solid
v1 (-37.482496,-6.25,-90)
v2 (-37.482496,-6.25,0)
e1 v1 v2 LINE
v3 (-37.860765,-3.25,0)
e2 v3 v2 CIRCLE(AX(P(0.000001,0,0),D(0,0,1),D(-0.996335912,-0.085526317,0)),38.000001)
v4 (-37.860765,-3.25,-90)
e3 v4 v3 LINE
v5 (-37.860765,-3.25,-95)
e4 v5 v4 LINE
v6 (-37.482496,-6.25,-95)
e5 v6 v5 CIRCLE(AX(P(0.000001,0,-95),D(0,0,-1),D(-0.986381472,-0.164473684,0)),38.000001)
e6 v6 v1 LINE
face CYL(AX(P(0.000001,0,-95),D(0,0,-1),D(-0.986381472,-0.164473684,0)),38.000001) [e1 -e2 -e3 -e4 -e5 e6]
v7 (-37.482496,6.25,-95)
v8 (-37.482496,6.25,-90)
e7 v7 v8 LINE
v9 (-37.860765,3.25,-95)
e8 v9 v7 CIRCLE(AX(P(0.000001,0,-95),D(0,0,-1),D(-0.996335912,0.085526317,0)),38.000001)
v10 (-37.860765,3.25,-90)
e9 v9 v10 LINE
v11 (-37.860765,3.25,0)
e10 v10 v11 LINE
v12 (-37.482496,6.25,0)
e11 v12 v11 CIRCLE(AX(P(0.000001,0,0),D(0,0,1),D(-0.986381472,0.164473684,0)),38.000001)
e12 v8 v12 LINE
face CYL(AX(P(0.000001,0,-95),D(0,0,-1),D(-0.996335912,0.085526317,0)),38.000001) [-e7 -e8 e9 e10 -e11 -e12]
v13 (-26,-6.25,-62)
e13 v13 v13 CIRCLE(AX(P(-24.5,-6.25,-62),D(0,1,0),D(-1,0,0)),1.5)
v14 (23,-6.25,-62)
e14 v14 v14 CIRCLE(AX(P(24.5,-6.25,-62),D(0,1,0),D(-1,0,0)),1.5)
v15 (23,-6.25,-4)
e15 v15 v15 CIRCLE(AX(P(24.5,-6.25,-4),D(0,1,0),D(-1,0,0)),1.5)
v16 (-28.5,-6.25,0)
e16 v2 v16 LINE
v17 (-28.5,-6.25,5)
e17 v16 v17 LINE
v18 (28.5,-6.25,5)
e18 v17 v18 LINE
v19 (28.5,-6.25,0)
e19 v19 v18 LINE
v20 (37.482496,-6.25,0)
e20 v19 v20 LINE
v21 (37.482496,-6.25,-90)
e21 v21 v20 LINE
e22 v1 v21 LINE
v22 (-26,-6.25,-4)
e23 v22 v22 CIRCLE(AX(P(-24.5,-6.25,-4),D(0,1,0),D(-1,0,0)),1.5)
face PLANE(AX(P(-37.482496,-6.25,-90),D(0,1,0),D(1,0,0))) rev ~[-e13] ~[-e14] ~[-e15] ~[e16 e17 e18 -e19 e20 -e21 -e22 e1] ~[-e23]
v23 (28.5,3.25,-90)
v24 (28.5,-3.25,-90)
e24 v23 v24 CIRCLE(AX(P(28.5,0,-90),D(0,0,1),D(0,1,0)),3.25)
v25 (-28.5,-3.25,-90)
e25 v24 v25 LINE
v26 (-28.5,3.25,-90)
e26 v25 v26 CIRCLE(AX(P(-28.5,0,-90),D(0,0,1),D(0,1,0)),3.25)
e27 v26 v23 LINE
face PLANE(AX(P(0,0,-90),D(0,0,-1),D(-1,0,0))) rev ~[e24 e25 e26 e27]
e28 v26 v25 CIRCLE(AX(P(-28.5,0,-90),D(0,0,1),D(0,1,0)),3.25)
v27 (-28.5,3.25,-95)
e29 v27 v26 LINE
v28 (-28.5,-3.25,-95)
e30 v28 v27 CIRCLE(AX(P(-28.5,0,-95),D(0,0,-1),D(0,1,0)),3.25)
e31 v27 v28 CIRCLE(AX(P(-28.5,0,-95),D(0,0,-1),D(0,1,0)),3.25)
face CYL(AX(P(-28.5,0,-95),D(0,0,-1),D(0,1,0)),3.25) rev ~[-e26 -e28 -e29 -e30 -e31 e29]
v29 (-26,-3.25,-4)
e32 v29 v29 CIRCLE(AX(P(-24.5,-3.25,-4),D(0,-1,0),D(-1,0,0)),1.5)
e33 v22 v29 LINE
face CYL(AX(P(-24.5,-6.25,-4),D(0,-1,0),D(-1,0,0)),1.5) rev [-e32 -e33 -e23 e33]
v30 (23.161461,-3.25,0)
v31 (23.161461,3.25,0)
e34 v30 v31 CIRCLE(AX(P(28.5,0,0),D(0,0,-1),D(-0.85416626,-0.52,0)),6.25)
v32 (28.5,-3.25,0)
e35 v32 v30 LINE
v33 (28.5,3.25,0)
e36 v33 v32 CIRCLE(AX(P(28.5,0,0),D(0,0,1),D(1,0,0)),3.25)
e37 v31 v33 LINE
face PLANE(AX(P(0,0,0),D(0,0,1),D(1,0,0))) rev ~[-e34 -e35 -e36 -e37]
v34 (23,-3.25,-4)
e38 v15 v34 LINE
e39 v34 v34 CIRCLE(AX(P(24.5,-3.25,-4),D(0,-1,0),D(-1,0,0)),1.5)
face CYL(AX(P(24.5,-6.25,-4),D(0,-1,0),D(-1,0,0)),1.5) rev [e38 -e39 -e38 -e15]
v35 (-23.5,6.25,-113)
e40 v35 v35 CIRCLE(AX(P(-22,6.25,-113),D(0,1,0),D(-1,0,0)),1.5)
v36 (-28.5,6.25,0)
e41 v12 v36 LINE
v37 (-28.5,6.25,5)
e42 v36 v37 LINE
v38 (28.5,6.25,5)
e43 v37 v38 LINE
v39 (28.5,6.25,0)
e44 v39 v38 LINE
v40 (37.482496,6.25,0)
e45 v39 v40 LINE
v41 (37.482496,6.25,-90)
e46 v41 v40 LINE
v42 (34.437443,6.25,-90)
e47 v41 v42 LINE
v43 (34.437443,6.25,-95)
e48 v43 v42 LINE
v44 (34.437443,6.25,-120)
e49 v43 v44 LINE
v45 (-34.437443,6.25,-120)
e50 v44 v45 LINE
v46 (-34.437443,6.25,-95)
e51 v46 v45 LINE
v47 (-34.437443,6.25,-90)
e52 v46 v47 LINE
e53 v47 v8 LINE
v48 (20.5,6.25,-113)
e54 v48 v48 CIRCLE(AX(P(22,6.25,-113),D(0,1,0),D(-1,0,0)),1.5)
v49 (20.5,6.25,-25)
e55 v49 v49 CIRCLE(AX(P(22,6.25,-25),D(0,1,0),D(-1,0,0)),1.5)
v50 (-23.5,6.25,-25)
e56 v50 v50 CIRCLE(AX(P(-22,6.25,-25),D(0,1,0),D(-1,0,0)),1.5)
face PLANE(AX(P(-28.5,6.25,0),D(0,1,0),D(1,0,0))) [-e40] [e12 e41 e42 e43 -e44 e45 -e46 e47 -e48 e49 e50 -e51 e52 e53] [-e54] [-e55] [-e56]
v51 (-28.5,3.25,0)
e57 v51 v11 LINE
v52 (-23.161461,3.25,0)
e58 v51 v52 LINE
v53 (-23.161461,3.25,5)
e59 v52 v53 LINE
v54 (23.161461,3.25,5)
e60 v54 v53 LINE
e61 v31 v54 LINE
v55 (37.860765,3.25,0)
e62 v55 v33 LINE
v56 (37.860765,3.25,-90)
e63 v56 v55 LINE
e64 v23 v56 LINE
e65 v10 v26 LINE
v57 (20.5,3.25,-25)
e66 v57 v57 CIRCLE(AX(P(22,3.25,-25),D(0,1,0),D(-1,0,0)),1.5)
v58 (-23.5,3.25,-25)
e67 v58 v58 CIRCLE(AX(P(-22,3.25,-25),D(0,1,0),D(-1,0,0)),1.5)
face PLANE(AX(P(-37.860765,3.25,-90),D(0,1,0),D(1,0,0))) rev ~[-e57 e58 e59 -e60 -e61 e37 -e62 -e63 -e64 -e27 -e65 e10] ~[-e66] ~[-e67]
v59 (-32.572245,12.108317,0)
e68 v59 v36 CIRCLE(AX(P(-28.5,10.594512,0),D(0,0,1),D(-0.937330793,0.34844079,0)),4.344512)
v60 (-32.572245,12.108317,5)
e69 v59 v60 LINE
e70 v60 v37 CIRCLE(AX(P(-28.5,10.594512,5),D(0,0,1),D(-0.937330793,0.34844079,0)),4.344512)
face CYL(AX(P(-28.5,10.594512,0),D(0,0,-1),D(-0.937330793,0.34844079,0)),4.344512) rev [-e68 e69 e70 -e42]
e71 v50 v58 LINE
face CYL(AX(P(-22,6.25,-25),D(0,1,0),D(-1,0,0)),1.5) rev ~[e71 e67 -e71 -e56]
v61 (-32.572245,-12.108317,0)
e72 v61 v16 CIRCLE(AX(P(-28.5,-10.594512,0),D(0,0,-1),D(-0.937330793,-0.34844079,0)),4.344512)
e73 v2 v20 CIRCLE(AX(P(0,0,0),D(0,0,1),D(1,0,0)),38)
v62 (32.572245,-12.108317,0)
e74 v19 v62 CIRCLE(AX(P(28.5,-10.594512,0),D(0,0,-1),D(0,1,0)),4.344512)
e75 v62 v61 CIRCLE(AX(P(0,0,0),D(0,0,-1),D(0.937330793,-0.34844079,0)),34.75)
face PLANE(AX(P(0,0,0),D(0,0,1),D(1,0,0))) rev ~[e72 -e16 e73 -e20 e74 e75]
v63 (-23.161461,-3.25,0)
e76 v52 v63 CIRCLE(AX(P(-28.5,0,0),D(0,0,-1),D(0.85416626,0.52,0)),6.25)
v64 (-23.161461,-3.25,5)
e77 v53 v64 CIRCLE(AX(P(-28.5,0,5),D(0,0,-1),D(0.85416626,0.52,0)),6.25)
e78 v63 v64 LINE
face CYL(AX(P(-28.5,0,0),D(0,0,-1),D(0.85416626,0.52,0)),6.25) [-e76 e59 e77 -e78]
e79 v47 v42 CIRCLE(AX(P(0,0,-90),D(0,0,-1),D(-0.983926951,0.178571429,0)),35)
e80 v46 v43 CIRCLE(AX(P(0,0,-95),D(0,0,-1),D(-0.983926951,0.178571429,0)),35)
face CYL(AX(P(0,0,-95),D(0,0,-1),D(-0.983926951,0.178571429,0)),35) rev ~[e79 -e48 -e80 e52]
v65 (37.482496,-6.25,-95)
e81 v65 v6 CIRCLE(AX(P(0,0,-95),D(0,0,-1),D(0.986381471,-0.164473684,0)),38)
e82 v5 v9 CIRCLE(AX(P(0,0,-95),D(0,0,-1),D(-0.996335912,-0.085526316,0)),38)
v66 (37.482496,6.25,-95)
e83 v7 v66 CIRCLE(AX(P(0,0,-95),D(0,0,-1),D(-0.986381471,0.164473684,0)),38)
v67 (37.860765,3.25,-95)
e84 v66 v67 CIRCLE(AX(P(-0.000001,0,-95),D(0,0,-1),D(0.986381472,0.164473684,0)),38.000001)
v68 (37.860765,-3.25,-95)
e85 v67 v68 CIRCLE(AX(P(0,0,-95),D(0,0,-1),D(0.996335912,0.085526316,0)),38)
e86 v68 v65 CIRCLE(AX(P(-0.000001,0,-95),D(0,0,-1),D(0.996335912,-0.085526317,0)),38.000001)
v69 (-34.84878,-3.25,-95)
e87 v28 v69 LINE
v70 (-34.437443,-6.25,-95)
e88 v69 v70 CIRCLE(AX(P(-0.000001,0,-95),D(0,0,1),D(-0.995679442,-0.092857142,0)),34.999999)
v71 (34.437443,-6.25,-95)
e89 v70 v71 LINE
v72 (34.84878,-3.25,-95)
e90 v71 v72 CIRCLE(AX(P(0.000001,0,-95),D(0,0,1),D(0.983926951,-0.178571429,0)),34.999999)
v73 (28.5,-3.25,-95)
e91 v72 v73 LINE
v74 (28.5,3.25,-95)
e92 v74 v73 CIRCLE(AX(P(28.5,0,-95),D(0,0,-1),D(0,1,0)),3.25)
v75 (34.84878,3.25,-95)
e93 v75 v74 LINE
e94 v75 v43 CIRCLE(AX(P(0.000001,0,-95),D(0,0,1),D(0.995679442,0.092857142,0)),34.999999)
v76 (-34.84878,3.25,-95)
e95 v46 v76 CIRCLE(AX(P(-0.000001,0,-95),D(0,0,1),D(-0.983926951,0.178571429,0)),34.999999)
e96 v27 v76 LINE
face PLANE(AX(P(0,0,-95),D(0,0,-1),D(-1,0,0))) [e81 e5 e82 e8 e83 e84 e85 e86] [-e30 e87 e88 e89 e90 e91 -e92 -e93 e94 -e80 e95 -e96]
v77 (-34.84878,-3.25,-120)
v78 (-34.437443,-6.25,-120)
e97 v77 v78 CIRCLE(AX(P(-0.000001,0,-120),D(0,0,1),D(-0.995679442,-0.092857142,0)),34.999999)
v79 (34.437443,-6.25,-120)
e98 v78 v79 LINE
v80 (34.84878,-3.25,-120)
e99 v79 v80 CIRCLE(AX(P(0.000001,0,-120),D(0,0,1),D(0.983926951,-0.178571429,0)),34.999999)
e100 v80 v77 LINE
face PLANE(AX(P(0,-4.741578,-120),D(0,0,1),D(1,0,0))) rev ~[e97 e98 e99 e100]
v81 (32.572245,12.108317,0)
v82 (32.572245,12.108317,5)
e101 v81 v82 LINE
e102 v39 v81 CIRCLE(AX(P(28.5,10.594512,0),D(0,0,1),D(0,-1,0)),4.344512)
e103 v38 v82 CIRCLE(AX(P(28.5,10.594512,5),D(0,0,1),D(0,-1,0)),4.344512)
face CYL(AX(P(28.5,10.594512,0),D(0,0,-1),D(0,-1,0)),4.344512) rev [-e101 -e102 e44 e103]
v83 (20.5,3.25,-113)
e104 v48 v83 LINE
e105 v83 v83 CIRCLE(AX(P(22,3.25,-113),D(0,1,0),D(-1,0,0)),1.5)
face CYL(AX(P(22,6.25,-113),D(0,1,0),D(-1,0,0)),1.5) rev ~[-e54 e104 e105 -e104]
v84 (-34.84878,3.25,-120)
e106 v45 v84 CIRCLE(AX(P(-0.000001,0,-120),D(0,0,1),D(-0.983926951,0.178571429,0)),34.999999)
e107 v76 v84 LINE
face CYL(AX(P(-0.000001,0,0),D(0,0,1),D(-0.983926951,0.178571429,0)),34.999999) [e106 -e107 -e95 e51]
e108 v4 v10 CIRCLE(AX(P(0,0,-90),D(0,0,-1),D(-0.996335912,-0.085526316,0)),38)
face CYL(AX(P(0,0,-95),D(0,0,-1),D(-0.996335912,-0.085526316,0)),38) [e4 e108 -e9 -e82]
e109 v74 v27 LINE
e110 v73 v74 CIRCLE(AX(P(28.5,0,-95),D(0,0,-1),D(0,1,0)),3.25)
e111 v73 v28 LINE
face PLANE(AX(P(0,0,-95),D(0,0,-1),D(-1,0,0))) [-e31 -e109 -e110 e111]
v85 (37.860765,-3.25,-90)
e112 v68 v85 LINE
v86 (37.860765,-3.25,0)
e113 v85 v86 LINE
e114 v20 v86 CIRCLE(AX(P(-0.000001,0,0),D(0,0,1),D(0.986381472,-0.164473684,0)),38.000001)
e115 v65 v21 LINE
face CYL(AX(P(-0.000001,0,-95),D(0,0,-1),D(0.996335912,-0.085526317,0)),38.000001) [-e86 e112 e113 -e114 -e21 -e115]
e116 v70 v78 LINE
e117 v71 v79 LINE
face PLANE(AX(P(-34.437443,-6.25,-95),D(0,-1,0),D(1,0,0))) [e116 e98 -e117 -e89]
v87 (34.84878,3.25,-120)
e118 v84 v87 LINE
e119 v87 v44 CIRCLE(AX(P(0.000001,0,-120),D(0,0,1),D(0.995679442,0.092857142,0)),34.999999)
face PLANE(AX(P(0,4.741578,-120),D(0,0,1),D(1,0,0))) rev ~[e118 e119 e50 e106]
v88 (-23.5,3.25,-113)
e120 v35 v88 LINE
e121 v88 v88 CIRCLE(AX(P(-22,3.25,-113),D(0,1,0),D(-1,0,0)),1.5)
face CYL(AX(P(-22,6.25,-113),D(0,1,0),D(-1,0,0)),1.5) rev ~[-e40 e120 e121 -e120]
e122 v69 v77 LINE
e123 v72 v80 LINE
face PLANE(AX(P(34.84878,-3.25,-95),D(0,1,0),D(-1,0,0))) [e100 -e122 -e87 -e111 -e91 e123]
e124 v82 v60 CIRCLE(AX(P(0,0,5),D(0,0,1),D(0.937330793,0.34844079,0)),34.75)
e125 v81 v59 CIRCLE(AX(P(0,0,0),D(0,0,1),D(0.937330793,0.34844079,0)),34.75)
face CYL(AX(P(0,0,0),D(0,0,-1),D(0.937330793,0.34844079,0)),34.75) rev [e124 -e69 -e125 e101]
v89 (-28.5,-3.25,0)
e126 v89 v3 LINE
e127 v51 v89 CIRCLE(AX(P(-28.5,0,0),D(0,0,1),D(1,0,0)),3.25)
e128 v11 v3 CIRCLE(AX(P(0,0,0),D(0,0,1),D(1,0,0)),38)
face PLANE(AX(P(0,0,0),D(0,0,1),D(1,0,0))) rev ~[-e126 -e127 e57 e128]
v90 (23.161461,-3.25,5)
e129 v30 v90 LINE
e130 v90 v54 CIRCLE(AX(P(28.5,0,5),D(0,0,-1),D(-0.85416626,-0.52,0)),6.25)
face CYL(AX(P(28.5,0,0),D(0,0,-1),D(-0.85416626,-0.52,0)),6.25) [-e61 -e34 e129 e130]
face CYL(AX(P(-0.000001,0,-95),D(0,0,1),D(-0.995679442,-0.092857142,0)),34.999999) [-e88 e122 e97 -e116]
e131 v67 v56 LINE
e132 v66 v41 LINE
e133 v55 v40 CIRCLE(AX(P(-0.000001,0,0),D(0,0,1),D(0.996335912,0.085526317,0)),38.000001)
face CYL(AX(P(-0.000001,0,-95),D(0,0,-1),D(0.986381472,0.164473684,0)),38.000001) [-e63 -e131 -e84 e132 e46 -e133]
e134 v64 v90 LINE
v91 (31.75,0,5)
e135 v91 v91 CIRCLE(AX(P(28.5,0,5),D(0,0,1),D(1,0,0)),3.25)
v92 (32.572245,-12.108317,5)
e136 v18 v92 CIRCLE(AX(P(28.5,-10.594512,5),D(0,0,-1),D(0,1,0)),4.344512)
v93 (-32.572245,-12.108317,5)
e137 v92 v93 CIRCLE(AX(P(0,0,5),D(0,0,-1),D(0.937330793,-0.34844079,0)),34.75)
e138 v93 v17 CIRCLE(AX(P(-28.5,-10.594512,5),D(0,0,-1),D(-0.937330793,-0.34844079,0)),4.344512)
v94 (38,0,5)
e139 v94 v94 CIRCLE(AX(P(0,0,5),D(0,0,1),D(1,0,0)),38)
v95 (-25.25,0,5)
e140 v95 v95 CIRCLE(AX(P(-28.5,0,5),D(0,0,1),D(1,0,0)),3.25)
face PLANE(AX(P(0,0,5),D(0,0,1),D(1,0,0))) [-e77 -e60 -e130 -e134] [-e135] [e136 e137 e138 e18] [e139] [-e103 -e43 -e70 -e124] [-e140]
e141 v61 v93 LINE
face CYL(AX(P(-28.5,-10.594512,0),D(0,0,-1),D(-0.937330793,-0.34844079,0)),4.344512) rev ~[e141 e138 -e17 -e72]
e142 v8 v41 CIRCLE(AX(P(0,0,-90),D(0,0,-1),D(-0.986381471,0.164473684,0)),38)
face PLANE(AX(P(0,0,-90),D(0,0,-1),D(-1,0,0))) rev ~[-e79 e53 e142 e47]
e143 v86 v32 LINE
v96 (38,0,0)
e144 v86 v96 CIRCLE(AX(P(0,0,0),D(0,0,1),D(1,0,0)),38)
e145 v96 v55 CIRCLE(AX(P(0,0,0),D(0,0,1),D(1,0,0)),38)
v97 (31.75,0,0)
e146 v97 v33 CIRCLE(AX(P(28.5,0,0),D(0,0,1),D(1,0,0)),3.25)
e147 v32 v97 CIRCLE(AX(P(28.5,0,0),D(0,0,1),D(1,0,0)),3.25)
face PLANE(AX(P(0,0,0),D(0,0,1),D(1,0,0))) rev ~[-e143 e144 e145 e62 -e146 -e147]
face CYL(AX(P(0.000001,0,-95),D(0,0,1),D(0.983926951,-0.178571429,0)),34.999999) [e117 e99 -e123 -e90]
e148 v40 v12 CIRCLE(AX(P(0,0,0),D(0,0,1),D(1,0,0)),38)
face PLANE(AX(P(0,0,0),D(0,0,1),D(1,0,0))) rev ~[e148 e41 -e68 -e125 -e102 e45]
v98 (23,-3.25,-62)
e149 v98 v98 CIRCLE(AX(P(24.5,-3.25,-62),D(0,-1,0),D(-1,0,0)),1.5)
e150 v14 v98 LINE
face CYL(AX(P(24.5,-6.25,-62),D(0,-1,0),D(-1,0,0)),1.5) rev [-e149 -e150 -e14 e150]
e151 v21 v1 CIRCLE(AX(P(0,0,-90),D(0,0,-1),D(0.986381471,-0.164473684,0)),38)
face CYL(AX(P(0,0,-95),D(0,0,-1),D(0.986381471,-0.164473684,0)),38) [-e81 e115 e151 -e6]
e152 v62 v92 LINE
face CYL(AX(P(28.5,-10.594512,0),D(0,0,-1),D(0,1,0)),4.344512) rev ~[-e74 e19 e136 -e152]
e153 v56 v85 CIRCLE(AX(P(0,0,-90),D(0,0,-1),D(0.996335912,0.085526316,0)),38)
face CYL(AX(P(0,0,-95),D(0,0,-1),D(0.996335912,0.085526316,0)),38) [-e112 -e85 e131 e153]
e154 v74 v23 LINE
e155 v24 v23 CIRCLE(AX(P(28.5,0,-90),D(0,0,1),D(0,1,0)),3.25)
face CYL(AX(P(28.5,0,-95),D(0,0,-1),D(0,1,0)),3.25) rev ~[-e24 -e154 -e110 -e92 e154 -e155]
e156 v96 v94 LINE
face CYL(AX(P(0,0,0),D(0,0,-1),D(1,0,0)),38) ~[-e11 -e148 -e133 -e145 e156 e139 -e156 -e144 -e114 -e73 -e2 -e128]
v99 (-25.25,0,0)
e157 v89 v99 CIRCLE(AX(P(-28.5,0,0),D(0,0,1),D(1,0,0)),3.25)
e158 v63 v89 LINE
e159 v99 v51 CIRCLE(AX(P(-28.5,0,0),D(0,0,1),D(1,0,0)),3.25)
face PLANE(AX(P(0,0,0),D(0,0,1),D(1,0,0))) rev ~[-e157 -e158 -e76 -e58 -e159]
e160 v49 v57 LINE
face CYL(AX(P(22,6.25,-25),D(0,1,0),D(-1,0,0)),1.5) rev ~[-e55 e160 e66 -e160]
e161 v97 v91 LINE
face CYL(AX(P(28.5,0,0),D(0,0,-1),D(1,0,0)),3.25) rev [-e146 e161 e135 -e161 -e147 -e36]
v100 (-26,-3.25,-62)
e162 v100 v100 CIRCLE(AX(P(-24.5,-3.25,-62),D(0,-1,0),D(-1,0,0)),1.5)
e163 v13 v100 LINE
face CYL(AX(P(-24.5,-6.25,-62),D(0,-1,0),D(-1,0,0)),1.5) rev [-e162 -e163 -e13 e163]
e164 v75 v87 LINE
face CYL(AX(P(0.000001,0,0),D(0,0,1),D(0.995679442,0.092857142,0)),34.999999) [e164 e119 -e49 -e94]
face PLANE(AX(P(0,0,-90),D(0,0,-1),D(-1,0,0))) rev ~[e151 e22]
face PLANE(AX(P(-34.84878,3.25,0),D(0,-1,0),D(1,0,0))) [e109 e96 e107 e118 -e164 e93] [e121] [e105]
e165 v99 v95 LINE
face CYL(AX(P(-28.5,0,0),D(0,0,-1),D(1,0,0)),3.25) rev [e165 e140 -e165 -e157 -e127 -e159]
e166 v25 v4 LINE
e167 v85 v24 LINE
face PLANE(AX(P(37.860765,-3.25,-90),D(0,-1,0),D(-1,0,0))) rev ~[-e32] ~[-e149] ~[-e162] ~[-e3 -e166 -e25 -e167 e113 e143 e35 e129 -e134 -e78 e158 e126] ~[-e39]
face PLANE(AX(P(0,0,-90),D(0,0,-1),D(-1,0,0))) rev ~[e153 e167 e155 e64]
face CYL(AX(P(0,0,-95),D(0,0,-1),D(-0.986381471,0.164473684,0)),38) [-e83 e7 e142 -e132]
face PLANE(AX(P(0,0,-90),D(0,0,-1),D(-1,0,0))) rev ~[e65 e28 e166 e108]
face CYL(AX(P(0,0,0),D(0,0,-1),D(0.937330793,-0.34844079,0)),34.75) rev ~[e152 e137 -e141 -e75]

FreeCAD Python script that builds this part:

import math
import FreeCAD as App
import Part
import Sketcher

V = App.Vector
Q = App.Units.Quantity

doc = App.newDocument("Part")
body = doc.addObject("PartDesign::Body", "Body")

sketch1 = doc.addObject("Sketcher::SketchObject", "Sketch")
body.addObject(sketch1)
sketch1.AttachmentSupport = (doc.XY_Plane, [""])
sketch1.MapMode = "FlatFace"
sketch1.addGeometry(Part.Circle(V(0, 0, 0), V(0, 0, 1), 38), False)
sketch1.addGeometry(Part.ArcOfCircle(Part.Circle(V(-28.5, -10.6, 0), V(0, 0, 1), 4.3), math.radians(90), math.radians(200)), False)
sketch1.addGeometry(Part.LineSegment(V(-28.5, -6.2, 0), V(28.5, -6.2, 0)), False)
sketch1.addGeometry(Part.ArcOfCircle(Part.Circle(V(28.5, -10.6, 0), V(0, 0, 1), 4.3), math.radians(-20), math.radians(90)), False)
sketch1.addGeometry(Part.ArcOfCircle(Part.Circle(V(0, 0, 0), V(0, 0, 1), 34.8), math.radians(-160), math.radians(-20)), False)
sketch1.addGeometry(Part.Circle(V(-28.5, 0, 0), V(0, 0, 1), 3.2), False)
sketch1.addGeometry(Part.LineSegment(V(-23.2, 3.2, 0), V(23.2, 3.2, 0)), False)
sketch1.addGeometry(Part.ArcOfCircle(Part.Circle(V(28.5, 0, 0), V(0, 0, 1), 6.2), math.radians(149), math.radians(211)), False)
sketch1.addGeometry(Part.LineSegment(V(23.2, -3.2, 0), V(-23.2, -3.2, 0)), False)
sketch1.addGeometry(Part.ArcOfCircle(Part.Circle(V(-28.5, 0, 0), V(0, 0, 1), 6.2), math.radians(-31), math.radians(31)), False)
sketch1.addGeometry(Part.Circle(V(28.5, 0, 0), V(0, 0, 1), 3.2), False)
sketch1.addGeometry(Part.LineSegment(V(28.5, 6.2, 0), V(-28.5, 6.2, 0)), False)
sketch1.addGeometry(Part.ArcOfCircle(Part.Circle(V(-28.5, 10.6, 0), V(0, 0, 1), 4.3), math.radians(160), math.radians(270)), False)
sketch1.addGeometry(Part.ArcOfCircle(Part.Circle(V(0, 0, 0), V(0, 0, 1), 34.8), math.radians(20), math.radians(160)), False)
sketch1.addGeometry(Part.ArcOfCircle(Part.Circle(V(28.5, 10.6, 0), V(0, 0, 1), 4.3), math.radians(-90), math.radians(20)), False)
sketch1.addConstraint(Sketcher.Constraint("Tangent", 1, 1, 2, 1))
sketch1.addConstraint(Sketcher.Constraint("Tangent", 2, 2, 3, 2))
sketch1.addConstraint(Sketcher.Constraint("Tangent", 3, 1, 4, 2))
sketch1.addConstraint(Sketcher.Constraint("Tangent", 4, 1, 1, 2))
sketch1.addConstraint(Sketcher.Constraint("Coincident", 6, 2, 7, 1))
sketch1.addConstraint(Sketcher.Constraint("Coincident", 7, 2, 8, 1))
sketch1.addConstraint(Sketcher.Constraint("Coincident", 8, 2, 9, 1))
sketch1.addConstraint(Sketcher.Constraint("Coincident", 9, 2, 6, 1))
sketch1.addConstraint(Sketcher.Constraint("Tangent", 11, 2, 12, 2))
sketch1.addConstraint(Sketcher.Constraint("Tangent", 12, 1, 13, 2))
sketch1.addConstraint(Sketcher.Constraint("Tangent", 13, 1, 14, 2))
sketch1.addConstraint(Sketcher.Constraint("Tangent", 14, 1, 11, 1))
sketch1.addConstraint(Sketcher.Constraint("Horizontal", 2))
sketch1.addConstraint(Sketcher.Constraint("Horizontal", 6))
sketch1.addConstraint(Sketcher.Constraint("Horizontal", 8))
sketch1.addConstraint(Sketcher.Constraint("Horizontal", 11))
sketch1.addConstraint(Sketcher.Constraint("Coincident", 0, 3, -1, 1))
sketch1.addConstraint(Sketcher.Constraint("Coincident", 4, 3, -1, 1))
sketch1.addConstraint(Sketcher.Constraint("Coincident", 13, 3, -1, 1))
sketch1.addConstraint(Sketcher.Constraint("Coincident", 9, 3, 5, 3))
sketch1.addConstraint(Sketcher.Constraint("Coincident", 10, 3, 7, 3))
sketch1.addConstraint(Sketcher.Constraint("Equal", 1, 3))
sketch1.addConstraint(Sketcher.Constraint("Equal", 7, 9))
sketch1.addConstraint(Sketcher.Constraint("Equal", 5, 10))
sketch1.addConstraint(Sketcher.Constraint("Equal", 3, 12))
sketch1.addConstraint(Sketcher.Constraint("Equal", 4, 13))
sketch1.addConstraint(Sketcher.Constraint("Equal", 12, 14))
sketch1.addConstraint(Sketcher.Constraint("Symmetric", 5, 3, 7, 3, -1, 1))
sketch1.addConstraint(Sketcher.Constraint("Symmetric", 6, 2, 7, 2, -1))
sketch1.addConstraint(Sketcher.Constraint("Vertical", 1, 3, 5, 3))
sketch1.addConstraint(Sketcher.Constraint("Vertical", 9, 3, 12, 3))
sketch1.addConstraint(Sketcher.Constraint("Diameter", 0, Q("76 mm")))
sketch1.addConstraint(Sketcher.Constraint("Diameter", 5, Q("6.5 mm")))
sketch1.addConstraint(Sketcher.Constraint("DistanceX", 2, 1, 2, 2, Q("57 mm")))
sketch1.addConstraint(Sketcher.Constraint("Radius", 4, Q("34.75 mm")))
sketch1.addConstraint(Sketcher.Constraint("Radius", 7, Q("6.25 mm")))
sketch1.addConstraint(Sketcher.Constraint("DistanceY", 2, 2, 7, 2, Q("3 mm")))
sketch1.addConstraint(Sketcher.Constraint("DistanceY", 2, 2, 6, 2, Q("9.5 mm")))
pad1 = doc.addObject("PartDesign::Pad", "Pad")
body.addObject(pad1)
pad1.Profile = sketch1
pad1.Length = 5

sketch2 = doc.addObject("Sketcher::SketchObject", "Sketch001")
body.addObject(sketch2)
sketch2.AttachmentSupport = (doc.XY_Plane, [""])
sketch2.MapMode = "FlatFace"
sketch2.AttachmentOffset = App.Placement(V(0, 0, -90), App.Rotation())
sketch2.addGeometry(Part.LineSegment(V(-37.9, -3.2, 0), V(37.9, -3.2, 0)), False)
sketch2.addGeometry(Part.ArcOfCircle(Part.Circle(V(0, 0, 0), V(0, 0, 1), 38), math.radians(-9.47), math.radians(-4.91)), False)
sketch2.addGeometry(Part.LineSegment(V(37.5, -6.2, 0), V(-37.5, -6.2, 0)), False)
sketch2.addGeometry(Part.ArcOfCircle(Part.Circle(V(0, 0, 0), V(0, 0, 1), 38), math.radians(-175.09), math.radians(-170.53)), False)
sketch2.addGeometry(Part.LineSegment(V(-37.5, 6.2, 0), V(37.5, 6.2, 0)), False)
sketch2.addGeometry(Part.ArcOfCircle(Part.Circle(V(0, 0, 0), V(0, 0, 1), 38), math.radians(4.91), math.radians(9.47)), False)
sketch2.addGeometry(Part.LineSegment(V(37.9, 3.2, 0), V(-37.9, 3.2, 0)), False)
sketch2.addGeometry(Part.ArcOfCircle(Part.Circle(V(0, 0, 0), V(0, 0, 1), 38), math.radians(170.53), math.radians(175.09)), False)
sketch2.addConstraint(Sketcher.Constraint("Coincident", 0, 2, 1, 2))
sketch2.addConstraint(Sketcher.Constraint("Coincident", 1, 1, 2, 1))
sketch2.addConstraint(Sketcher.Constraint("Coincident", 2, 2, 3, 2))
sketch2.addConstraint(Sketcher.Constraint("Coincident", 3, 1, 0, 1))
sketch2.addConstraint(Sketcher.Constraint("Coincident", 4, 2, 5, 2))
sketch2.addConstraint(Sketcher.Constraint("Coincident", 5, 1, 6, 1))
sketch2.addConstraint(Sketcher.Constraint("Coincident", 6, 2, 7, 2))
sketch2.addConstraint(Sketcher.Constraint("Coincident", 7, 1, 4, 1))
sketch2.addConstraint(Sketcher.Constraint("Horizontal", 0))
sketch2.addConstraint(Sketcher.Constraint("Horizontal", 2))
sketch2.addConstraint(Sketcher.Constraint("Horizontal", 4))
sketch2.addConstraint(Sketcher.Constraint("Horizontal", 6))
sketch2.addConstraint(Sketcher.Constraint("Coincident", 1, 3, -1, 1))
sketch2.addConstraint(Sketcher.Constraint("Coincident", 3, 3, -1, 1))
sketch2.addConstraint(Sketcher.Constraint("Coincident", 5, 3, -1, 1))
sketch2.addConstraint(Sketcher.Constraint("Coincident", 7, 3, -1, 1))
sketch2.addConstraint(Sketcher.Constraint("Equal", 1, 3))
sketch2.addConstraint(Sketcher.Constraint("Equal", 3, 5))
sketch2.addConstraint(Sketcher.Constraint("Equal", 5, 7))
sketch2.addConstraint(Sketcher.Constraint("Vertical", 1, 1, 4, 2))
sketch2.addConstraint(Sketcher.Constraint("Vertical", 0, 2, 5, 1))
sketch2.addConstraint(Sketcher.Constraint("Radius", 1, Q("38.000001 mm")))
sketch2.addConstraint(Sketcher.Constraint("DistanceY", 1, 1, 0, 2, Q("3 mm")))
sketch2.addConstraint(Sketcher.Constraint("DistanceY", 0, 2, 4, 2, Q("9.5 mm")))
pad2 = doc.addObject("PartDesign::Pad", "Pad001")
body.addObject(pad2)
pad2.Profile = sketch2
pad2.Length = 90

sketch3 = doc.addObject("Sketcher::SketchObject", "Sketch002")
body.addObject(sketch3)
sketch3.AttachmentSupport = (doc.XY_Plane, [""])
sketch3.MapMode = "FlatFace"
sketch3.AttachmentOffset = App.Placement(V(0, 0, -95), App.Rotation())
sketch3.addGeometry(Part.ArcOfCircle(Part.Circle(V(0, 0, 0), V(0, 0, 1), 38), math.radians(170.53), math.radians(175.09)), False)
sketch3.addGeometry(Part.ArcOfCircle(Part.Circle(V(0, 0, 0), V(0, 0, 1), 38), math.radians(9), math.radians(171)), False)
sketch3.addGeometry(Part.ArcOfCircle(Part.Circle(V(0, 0, 0), V(0, 0, 1), 38), math.radians(4.91), math.radians(9.47)), False)
sketch3.addGeometry(Part.ArcOfCircle(Part.Circle(V(0, 0, 0), V(0, 0, 1), 38), math.radians(-4.91), math.radians(4.91)), False)
sketch3.addGeometry(Part.ArcOfCircle(Part.Circle(V(0, 0, 0), V(0, 0, 1), 38), math.radians(-9.47), math.radians(-4.91)), False)
sketch3.addGeometry(Part.ArcOfCircle(Part.Circle(V(0, 0, 0), V(0, 0, 1), 38), math.radians(-171), math.radians(-9)), False)
sketch3.addGeometry(Part.ArcOfCircle(Part.Circle(V(0, 0, 0), V(0, 0, 1), 38), math.radians(-175.09), math.radians(-170.53)), False)
sketch3.addGeometry(Part.ArcOfCircle(Part.Circle(V(0, 0, 0), V(0, 0, 1), 38), math.radians(175.09), math.radians(184.91)), False)
sketch3.addGeometry(Part.ArcOfCircle(Part.Circle(V(28.5, 0, 0), V(0, 0, 1), 3.2), math.radians(-90), math.radians(90)), False)
sketch3.addGeometry(Part.ArcOfCircle(Part.Circle(V(28.5, 0, 0), V(0, 0, 1), 3.2), math.radians(90), math.radians(270)), False)
sketch3.addGeometry(Part.ArcOfCircle(Part.Circle(V(-28.5, 0, 0), V(0, 0, 1), 3.2), math.radians(-90), math.radians(90)), False)
sketch3.addGeometry(Part.ArcOfCircle(Part.Circle(V(-28.5, 0, 0), V(0, 0, 1), 3.2), math.radians(90), math.radians(270)), False)
sketch3.addConstraint(Sketcher.Constraint("Tangent", 0, 1, 1, 2))
sketch3.addConstraint(Sketcher.Constraint("Tangent", 1, 1, 2, 2))
sketch3.addConstraint(Sketcher.Constraint("Tangent", 2, 1, 3, 2))
sketch3.addConstraint(Sketcher.Constraint("Tangent", 3, 1, 4, 2))
sketch3.addConstraint(Sketcher.Constraint("Tangent", 4, 1, 5, 2))
sketch3.addConstraint(Sketcher.Constraint("Tangent", 5, 1, 6, 2))
sketch3.addConstraint(Sketcher.Constraint("Tangent", 6, 1, 7, 2))
sketch3.addConstraint(Sketcher.Constraint("Tangent", 7, 1, 0, 2))
sketch3.addConstraint(Sketcher.Constraint("Tangent", 8, 1, 9, 2))
sketch3.addConstraint(Sketcher.Constraint("Coincident", 9, 1, 8, 2))
sketch3.addConstraint(Sketcher.Constraint("Tangent", 10, 1, 11, 2))
sketch3.addConstraint(Sketcher.Constraint("Coincident", 11, 1, 10, 2))
sketch3.addConstraint(Sketcher.Constraint("Coincident", 0, 3, -1, 1))
sketch3.addConstraint(Sketcher.Constraint("Coincident", 2, 3, -1, 1))
sketch3.addConstraint(Sketcher.Constraint("Coincident", 4, 3, -1, 1))
sketch3.addConstraint(Sketcher.Constraint("Equal", 4, 5))
sketch3.addConstraint(Sketcher.Constraint("Equal", 9, 10))
sketch3.addConstraint(Sketcher.Constraint("Symmetric", 8, 3, 10, 3, -1, 1))
sketch3.addConstraint(Sketcher.Constraint("Symmetric", 8, 1, 10, 1, -2))
sketch3.addConstraint(Sketcher.Constraint("Horizontal", 0, 1, 1, 1))
sketch3.addConstraint(Sketcher.Constraint("Horizontal", 4, 1, 5, 1))
sketch3.addConstraint(Sketcher.Constraint("Horizontal", 3, 1, 6, 1))
sketch3.addConstraint(Sketcher.Constraint("Horizontal", 2, 1, 7, 1))
sketch3.addConstraint(Sketcher.Constraint("Horizontal", 6, 1, 8, 1))
sketch3.addConstraint(Sketcher.Constraint("Horizontal", 7, 1, 9, 1))
sketch3.addConstraint(Sketcher.Constraint("Vertical", 1, 1, 4, 1))
sketch3.addConstraint(Sketcher.Constraint("Vertical", 9, 3, 8, 1))
sketch3.addConstraint(Sketcher.Constraint("Vertical", 8, 1, 9, 1))
sketch3.addConstraint(Sketcher.Constraint("Vertical", 10, 1, 11, 1))
sketch3.addConstraint(Sketcher.Constraint("Radius", 0, Q("38.000001 mm")))
sketch3.addConstraint(Sketcher.Constraint("Radius", 8, Q("3.25 mm")))
sketch3.addConstraint(Sketcher.Constraint("DistanceY", 2, 1, 1, 1, Q("3 mm")))
sketch3.addConstraint(Sketcher.Constraint("DistanceX", -1, 1, 8, 3, Q("28.5 mm")))
pad3 = doc.addObject("PartDesign::Pad", "Pad002")
body.addObject(pad3)
pad3.Profile = sketch3
pad3.Length = 5

sketch4 = doc.addObject("Sketcher::SketchObject", "Sketch003")
body.addObject(sketch4)
sketch4.AttachmentSupport = (doc.XZ_Plane, [""])
sketch4.MapMode = "FlatFace"
sketch4.AttachmentOffset = App.Placement(V(0, 0, 6.25), App.Rotation())
sketch4.addGeometry(Part.Circle(V(-24.5, -62, 0), V(0, 0, 1), 1.5), False)
sketch4.addConstraint(Sketcher.Constraint("Diameter", 0, Q("3 mm")))
sketch4.addConstraint(Sketcher.Constraint("DistanceY", 0, 3, -1, 1, Q("62 mm")))
sketch4.addConstraint(Sketcher.Constraint("DistanceX", 0, 3, -1, 1, Q("24.5 mm")))
pocket1 = doc.addObject("PartDesign::Pocket", "Pocket")
body.addObject(pocket1)
pocket1.Profile = sketch4
pocket1.Type = "UpToFirst"

sketch5 = doc.addObject("Sketcher::SketchObject", "Sketch004")
body.addObject(sketch5)
sketch5.AttachmentSupport = (doc.XZ_Plane, [""])
sketch5.MapMode = "FlatFace"
sketch5.AttachmentOffset = App.Placement(V(0, 0, 6.25), App.Rotation())
sketch5.addGeometry(Part.Circle(V(24.5, -62, 0), V(0, 0, 1), 1.5), False)
sketch5.addConstraint(Sketcher.Constraint("Diameter", 0, Q("3 mm")))
sketch5.addConstraint(Sketcher.Constraint("DistanceY", 0, 3, -1, 1, Q("62 mm")))
sketch5.addConstraint(Sketcher.Constraint("DistanceX", -1, 1, 0, 3, Q("24.5 mm")))
pocket2 = doc.addObject("PartDesign::Pocket", "Pocket001")
body.addObject(pocket2)
pocket2.Profile = sketch5
pocket2.Type = "UpToFirst"

sketch6 = doc.addObject("Sketcher::SketchObject", "Sketch005")
body.addObject(sketch6)
sketch6.AttachmentSupport = (doc.XZ_Plane, [""])
sketch6.MapMode = "FlatFace"
sketch6.AttachmentOffset = App.Placement(V(0, 0, 6.25), App.Rotation())
sketch6.addGeometry(Part.Circle(V(24.5, -4, 0), V(0, 0, 1), 1.5), False)
sketch6.addConstraint(Sketcher.Constraint("Diameter", 0, Q("3 mm")))
sketch6.addConstraint(Sketcher.Constraint("DistanceY", 0, 3, -1, 1, Q("4 mm")))
sketch6.addConstraint(Sketcher.Constraint("DistanceX", -1, 1, 0, 3, Q("24.5 mm")))
pocket3 = doc.addObject("PartDesign::Pocket", "Pocket002")
body.addObject(pocket3)
pocket3.Profile = sketch6
pocket3.Type = "UpToFirst"

sketch7 = doc.addObject("Sketcher::SketchObject", "Sketch006")
body.addObject(sketch7)
sketch7.AttachmentSupport = (doc.XZ_Plane, [""])
sketch7.MapMode = "FlatFace"
sketch7.AttachmentOffset = App.Placement(V(0, 0, 6.25), App.Rotation())
sketch7.addGeometry(Part.Circle(V(-24.5, -4, 0), V(0, 0, 1), 1.5), False)
sketch7.addConstraint(Sketcher.Constraint("Diameter", 0, Q("3 mm")))
sketch7.addConstraint(Sketcher.Constraint("DistanceY", 0, 3, -1, 1, Q("4 mm")))
sketch7.addConstraint(Sketcher.Constraint("DistanceX", 0, 3, -1, 1, Q("24.5 mm")))
pocket4 = doc.addObject("PartDesign::Pocket", "Pocket003")
body.addObject(pocket4)
pocket4.Profile = sketch7
pocket4.Type = "UpToFirst"

sketch8 = doc.addObject("Sketcher::SketchObject", "Sketch007")
body.addObject(sketch8)
sketch8.AttachmentSupport = (doc.XY_Plane, [""])
sketch8.MapMode = "FlatFace"
sketch8.addGeometry(Part.LineSegment(V(-34.4, 6.2, 0), V(34.4, 6.2, 0)), False)
sketch8.addGeometry(Part.ArcOfCircle(Part.Circle(V(0, 0, 0), V(0, 0, 1), 35), math.radians(5.33), math.radians(10.29)), False)
sketch8.addGeometry(Part.LineSegment(V(34.8, 3.2, 0), V(-34.8, 3.2, 0)), False)
sketch8.addGeometry(Part.ArcOfCircle(Part.Circle(V(0, 0, 0), V(0, 0, 1), 35), math.radians(169.71), math.radians(174.67)), False)
sketch8.addConstraint(Sketcher.Constraint("Coincident", 0, 2, 1, 2))
sketch8.addConstraint(Sketcher.Constraint("Coincident", 1, 1, 2, 1))
sketch8.addConstraint(Sketcher.Constraint("Coincident", 2, 2, 3, 2))
sketch8.addConstraint(Sketcher.Constraint("Coincident", 3, 1, 0, 1))
sketch8.addConstraint(Sketcher.Constraint("Horizontal", 0))
sketch8.addConstraint(Sketcher.Constraint("Horizontal", 2))
sketch8.addConstraint(Sketcher.Constraint("Coincident", 1, 3, -1, 1))
sketch8.addConstraint(Sketcher.Constraint("Coincident", 3, 3, -1, 1))
sketch8.addConstraint(Sketcher.Constraint("Equal", 1, 3))
sketch8.addConstraint(Sketcher.Constraint("Radius", 1, Q("34.999999 mm")))
sketch8.addConstraint(Sketcher.Constraint("DistanceY", 1, 1, 0, 2, Q("3 mm")))
sketch8.addConstraint(Sketcher.Constraint("DistanceY", -1, 1, 0, 2, Q("6.25 mm")))
pad4 = doc.addObject("PartDesign::Pad", "Pad003")
body.addObject(pad4)
pad4.Profile = sketch8
pad4.Length = 120
pad4.Reversed = True

sketch9 = doc.addObject("Sketcher::SketchObject", "Sketch008")
body.addObject(sketch9)
sketch9.AttachmentSupport = (doc.XZ_Plane, [""])
sketch9.MapMode = "FlatFace"
sketch9.AttachmentOffset = App.Placement(V(0, 0, -6.25), App.Rotation())
sketch9.addGeometry(Part.Circle(V(-22, -113, 0), V(0, 0, 1), 1.5), False)
sketch9.addConstraint(Sketcher.Constraint("Diameter", 0, Q("3 mm")))
sketch9.addConstraint(Sketcher.Constraint("DistanceX", 0, 3, -1, 1, Q("22 mm")))
sketch9.addConstraint(Sketcher.Constraint("DistanceY", 0, 3, -1, 1, Q("113 mm")))
pocket5 = doc.addObject("PartDesign::Pocket", "Pocket004")
body.addObject(pocket5)
pocket5.Profile = sketch9
pocket5.Type = "UpToFirst"
pocket5.Reversed = True

sketch10 = doc.addObject("Sketcher::SketchObject", "Sketch009")
body.addObject(sketch10)
sketch10.AttachmentSupport = (doc.XZ_Plane, [""])
sketch10.MapMode = "FlatFace"
sketch10.AttachmentOffset = App.Placement(V(0, 0, -6.25), App.Rotation())
sketch10.addGeometry(Part.Circle(V(22, -113, 0), V(0, 0, 1), 1.5), False)
sketch10.addConstraint(Sketcher.Constraint("Diameter", 0, Q("3 mm")))
sketch10.addConstraint(Sketcher.Constraint("DistanceX", -1, 1, 0, 3, Q("22 mm")))
sketch10.addConstraint(Sketcher.Constraint("DistanceY", 0, 3, -1, 1, Q("113 mm")))
pocket6 = doc.addObject("PartDesign::Pocket", "Pocket005")
body.addObject(pocket6)
pocket6.Profile = sketch10
pocket6.Type = "UpToFirst"
pocket6.Reversed = True

sketch11 = doc.addObject("Sketcher::SketchObject", "Sketch010")
body.addObject(sketch11)
sketch11.AttachmentSupport = (doc.XZ_Plane, [""])
sketch11.MapMode = "FlatFace"
sketch11.AttachmentOffset = App.Placement(V(0, 0, -6.25), App.Rotation())
sketch11.addGeometry(Part.Circle(V(22, -25, 0), V(0, 0, 1), 1.5), False)
sketch11.addConstraint(Sketcher.Constraint("Diameter", 0, Q("3 mm")))
sketch11.addConstraint(Sketcher.Constraint("DistanceX", -1, 1, 0, 3, Q("22 mm")))
sketch11.addConstraint(Sketcher.Constraint("DistanceY", 0, 3, -1, 1, Q("25 mm")))
pocket7 = doc.addObject("PartDesign::Pocket", "Pocket006")
body.addObject(pocket7)
pocket7.Profile = sketch11
pocket7.Type = "UpToFirst"
pocket7.Reversed = True

sketch12 = doc.addObject("Sketcher::SketchObject", "Sketch011")
body.addObject(sketch12)
sketch12.AttachmentSupport = (doc.XZ_Plane, [""])
sketch12.MapMode = "FlatFace"
sketch12.AttachmentOffset = App.Placement(V(0, 0, -6.25), App.Rotation())
sketch12.addGeometry(Part.Circle(V(-22, -25, 0), V(0, 0, 1), 1.5), False)
sketch12.addConstraint(Sketcher.Constraint("Diameter", 0, Q("3 mm")))
sketch12.addConstraint(Sketcher.Constraint("DistanceX", 0, 3, -1, 1, Q("22 mm")))
sketch12.addConstraint(Sketcher.Constraint("DistanceY", 0, 3, -1, 1, Q("25 mm")))
pocket8 = doc.addObject("PartDesign::Pocket", "Pocket007")
body.addObject(pocket8)
pocket8.Profile = sketch12
pocket8.Type = "UpToFirst"
pocket8.Reversed = True

sketch13 = doc.addObject("Sketcher::SketchObject", "Sketch012")
body.addObject(sketch13)
sketch13.AttachmentSupport = (doc.XY_Plane, [""])
sketch13.MapMode = "FlatFace"
sketch13.AttachmentOffset = App.Placement(V(0, 0, -95), App.Rotation())
sketch13.addGeometry(Part.LineSegment(V(34, 6, 0), V(-34, 6, 0)), False)
sketch13.addGeometry(Part.ArcOfCircle(Part.Circle(V(0, 0, 0), V(0, 0, 1), 35), math.radians(10), math.radians(170)), False)
sketch13.addConstraint(Sketcher.Constraint("Coincident", 0, 1, 1, 1))
sketch13.addConstraint(Sketcher.Constraint("Coincident", 1, 2, 0, 2))
sketch13.addConstraint(Sketcher.Constraint("Horizontal", 0))
sketch13.addConstraint(Sketcher.Constraint("Coincident", 1, 3, -1, 1))
sketch13.addConstraint(Sketcher.Constraint("Radius", 1, Q("35 mm")))
sketch13.addConstraint(Sketcher.Constraint("DistanceY", -1, 1, 0, 1, Q("6.25 mm")))
pocket9 = doc.addObject("PartDesign::Pocket", "Pocket008")
body.addObject(pocket9)
pocket9.Profile = sketch13
pocket9.Type = "UpToFirst"
pocket9.Reversed = True

sketch14 = doc.addObject("Sketcher::SketchObject", "Sketch013")
body.addObject(sketch14)
sketch14.AttachmentSupport = (doc.XY_Plane, [""])
sketch14.MapMode = "FlatFace"
sketch14.AttachmentOffset = App.Placement(V(0, 0, -95), App.Rotation())
sketch14.addGeometry(Part.LineSegment(V(-34.8, -3.2, 0), V(34.8, -3.2, 0)), False)
sketch14.addGeometry(Part.ArcOfCircle(Part.Circle(V(0, 0, 0), V(0, 0, 1), 35), math.radians(-10.29), math.radians(-5.33)), False)
sketch14.addGeometry(Part.LineSegment(V(34.4, -6.2, 0), V(-34.4, -6.2, 0)), False)
sketch14.addGeometry(Part.ArcOfCircle(Part.Circle(V(0, 0, 0), V(0, 0, 1), 35), math.radians(-174.67), math.radians(-169.71)), False)
sketch14.addConstraint(Sketcher.Constraint("Coincident", 0, 2, 1, 2))
sketch14.addConstraint(Sketcher.Constraint("Coincident", 1, 1, 2, 1))
sketch14.addConstraint(Sketcher.Constraint("Coincident", 2, 2, 3, 2))
sketch14.addConstraint(Sketcher.Constraint("Coincident", 3, 1, 0, 1))
sketch14.addConstraint(Sketcher.Constraint("Horizontal", 0))
sketch14.addConstraint(Sketcher.Constraint("Horizontal", 2))
sketch14.addConstraint(Sketcher.Constraint("Coincident", 1, 3, -1, 1))
sketch14.addConstraint(Sketcher.Constraint("Coincident", 3, 3, -1, 1))
sketch14.addConstraint(Sketcher.Constraint("Equal", 1, 3))
sketch14.addConstraint(Sketcher.Constraint("Radius", 1, Q("34.999999 mm")))
sketch14.addConstraint(Sketcher.Constraint("DistanceY", 1, 1, 0, 2, Q("3 mm")))
sketch14.addConstraint(Sketcher.Constraint("DistanceY", 0, 2, -1, 1, Q("3.25 mm")))
pad5 = doc.addObject("PartDesign::Pad", "Pad004")
body.addObject(pad5)
pad5.Profile = sketch14
pad5.Length = 25
pad5.Reversed = True

doc.recompute()
